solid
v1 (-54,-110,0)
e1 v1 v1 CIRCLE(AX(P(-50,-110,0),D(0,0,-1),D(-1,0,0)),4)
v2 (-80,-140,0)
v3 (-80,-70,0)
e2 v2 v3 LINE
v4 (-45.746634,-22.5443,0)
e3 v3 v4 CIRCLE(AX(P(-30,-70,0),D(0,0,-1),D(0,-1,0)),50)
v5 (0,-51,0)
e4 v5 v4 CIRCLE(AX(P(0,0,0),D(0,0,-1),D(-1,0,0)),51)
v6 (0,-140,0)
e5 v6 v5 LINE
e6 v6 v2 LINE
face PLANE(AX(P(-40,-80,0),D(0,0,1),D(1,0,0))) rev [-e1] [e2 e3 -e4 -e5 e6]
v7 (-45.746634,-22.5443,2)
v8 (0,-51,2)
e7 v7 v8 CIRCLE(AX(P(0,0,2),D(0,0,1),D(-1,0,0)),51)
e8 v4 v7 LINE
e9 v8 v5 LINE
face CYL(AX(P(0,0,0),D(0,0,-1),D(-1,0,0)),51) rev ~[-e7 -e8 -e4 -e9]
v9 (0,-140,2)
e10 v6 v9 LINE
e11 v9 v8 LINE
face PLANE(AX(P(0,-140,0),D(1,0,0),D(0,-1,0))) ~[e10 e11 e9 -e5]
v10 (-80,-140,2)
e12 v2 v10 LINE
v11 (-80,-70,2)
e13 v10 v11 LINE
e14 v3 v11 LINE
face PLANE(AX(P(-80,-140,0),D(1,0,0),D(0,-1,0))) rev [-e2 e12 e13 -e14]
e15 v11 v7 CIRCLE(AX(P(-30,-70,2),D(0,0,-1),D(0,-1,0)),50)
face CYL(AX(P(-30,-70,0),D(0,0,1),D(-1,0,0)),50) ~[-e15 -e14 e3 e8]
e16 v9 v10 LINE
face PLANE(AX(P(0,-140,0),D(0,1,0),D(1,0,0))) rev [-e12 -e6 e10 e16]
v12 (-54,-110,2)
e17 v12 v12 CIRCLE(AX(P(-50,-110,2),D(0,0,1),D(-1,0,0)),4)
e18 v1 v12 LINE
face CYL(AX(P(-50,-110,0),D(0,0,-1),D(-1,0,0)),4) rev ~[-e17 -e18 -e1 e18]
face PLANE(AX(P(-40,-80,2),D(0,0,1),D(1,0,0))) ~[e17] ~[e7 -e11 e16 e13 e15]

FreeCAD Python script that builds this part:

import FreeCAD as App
import Part
import Sketcher


def edges_at(feature, points):
    """Names of the edges that pass closest to the given points."""
    edges = feature.Shape.Edges
    near = lambda p: min(range(len(edges)), key=lambda i: edges[i].distToShape(Part.Vertex(*p))[0])
    return sorted({f"Edge{near(p) + 1}" for p in points})


def add_polygon(sketch, points):
    """Adds a closed chain of lines whose ends are joined by coincident constraints."""
    first, n = sketch.GeometryCount, len(points)
    for a, b in zip(points, points[1:] + points[:1]):
        sketch.addGeometry(Part.LineSegment(App.Vector(*a, 0), App.Vector(*b, 0)), False)
    for i in range(n):
        sketch.addConstraint(Sketcher.Constraint("Coincident", first + i, 2, first + (i + 1) % n, 1))

doc = App.newDocument("Part")
body = doc.addObject("PartDesign::Body", "Body")

sketch1 = doc.addObject("Sketcher::SketchObject", "Sketch")
body.addObject(sketch1)
sketch1.AttachmentSupport = (doc.XY_Plane, [""])
sketch1.MapMode = "FlatFace"
sketch1.addGeometry(Part.Circle(App.Vector(0, 0, 0), App.Vector(0, 0, 1), 51), False)
sketch1.addConstraint(Sketcher.Constraint("Coincident", 0, 3, -1, 1))
sketch1.addConstraint(Sketcher.Constraint("Diameter", 0, 102.0))
pad1 = doc.addObject("PartDesign::Pad", "Pad")
body.addObject(pad1)
pad1.Profile = sketch1
pad1.Length = 10
body2 = doc.addObject("PartDesign::Body", "Body001")

sketch2 = doc.addObject("Sketcher::SketchObject", "Sketch001")
body2.addObject(sketch2)
sketch2.AttachmentSupport = (doc.getObject("XY_Plane001"), [""])
sketch2.MapMode = "FlatFace"
sketch2.addGeometry(Part.Circle(App.Vector(50, -110, 0), App.Vector(0, 0, 1), 4), False)
sketch2.addConstraint(Sketcher.Constraint("Diameter", 0, 8.0))
sketch2.addConstraint(Sketcher.Constraint("DistanceX", -1, 1, 0, 3, 50.0))
sketch2.addConstraint(Sketcher.Constraint("DistanceY", 0, 3, -1, 1, 110.0))
pad2 = doc.addObject("PartDesign::Pad", "Pad001")
body2.addObject(pad2)
pad2.Profile = sketch2
pad2.Length = 10
body3 = doc.addObject("PartDesign::Body", "Body002")

sketch3 = doc.addObject("Sketcher::SketchObject", "Sketch002")
body3.addObject(sketch3)
sketch3.AttachmentSupport = (doc.getObject("XY_Plane002"), [""])
sketch3.MapMode = "FlatFace"
add_polygon(sketch3, [(0, -20), (0, -140), (80, -140), (80, -20)])
sketch3.addConstraint(Sketcher.Constraint("Vertical", 0))
sketch3.addConstraint(Sketcher.Constraint("Horizontal", 1))
sketch3.addConstraint(Sketcher.Constraint("Vertical", 2))
sketch3.addConstraint(Sketcher.Constraint("Horizontal", 3))
sketch3.addConstraint(Sketcher.Constraint("PointOnObject", 0, 2, -2))
sketch3.addConstraint(Sketcher.Constraint("DistanceX", 1, 1, 1, 2, 80.0))
sketch3.addConstraint(Sketcher.Constraint("DistanceY", 0, 2, 0, 1, 120.0))
sketch3.addConstraint(Sketcher.Constraint("DistanceY", 0, 2, -1, 1, 140.0))
pad3 = doc.addObject("PartDesign::Pad", "Pad002")
body3.addObject(pad3)
pad3.Profile = sketch3
pad3.Length = 2
doc.recompute()

fillet = doc.addObject("PartDesign::Fillet", "Fillet")
body3.addObject(fillet)
fillet.Base = (pad3, edges_at(pad3, [(80, -20, 1)]))
fillet.Radius = 50
doc.recompute()

boolean = doc.addObject("PartDesign::Boolean", "Boolean")
body3.addObject(boolean)
boolean.Type = "Cut"
boolean.addObjects([body2])
doc.recompute()

boolean2 = doc.addObject("PartDesign::Boolean", "Boolean001")
body3.addObject(boolean2)
boolean2.Type = "Cut"
boolean2.addObjects([body])
body4 = doc.addObject("PartDesign::Body", "Body003")
doc.recompute()

mirroring = doc.addObject("Part::Mirroring", "Mirroring")
mirroring.Source = body3
mirroring.Base = App.Vector(0, 0, 0)
mirroring.Normal = App.Vector(1, 0, 0)
body4.BaseFeature = mirroring
doc.recompute()
body3.Visibility = False
mirroring.Visibility = False

doc.recompute()
